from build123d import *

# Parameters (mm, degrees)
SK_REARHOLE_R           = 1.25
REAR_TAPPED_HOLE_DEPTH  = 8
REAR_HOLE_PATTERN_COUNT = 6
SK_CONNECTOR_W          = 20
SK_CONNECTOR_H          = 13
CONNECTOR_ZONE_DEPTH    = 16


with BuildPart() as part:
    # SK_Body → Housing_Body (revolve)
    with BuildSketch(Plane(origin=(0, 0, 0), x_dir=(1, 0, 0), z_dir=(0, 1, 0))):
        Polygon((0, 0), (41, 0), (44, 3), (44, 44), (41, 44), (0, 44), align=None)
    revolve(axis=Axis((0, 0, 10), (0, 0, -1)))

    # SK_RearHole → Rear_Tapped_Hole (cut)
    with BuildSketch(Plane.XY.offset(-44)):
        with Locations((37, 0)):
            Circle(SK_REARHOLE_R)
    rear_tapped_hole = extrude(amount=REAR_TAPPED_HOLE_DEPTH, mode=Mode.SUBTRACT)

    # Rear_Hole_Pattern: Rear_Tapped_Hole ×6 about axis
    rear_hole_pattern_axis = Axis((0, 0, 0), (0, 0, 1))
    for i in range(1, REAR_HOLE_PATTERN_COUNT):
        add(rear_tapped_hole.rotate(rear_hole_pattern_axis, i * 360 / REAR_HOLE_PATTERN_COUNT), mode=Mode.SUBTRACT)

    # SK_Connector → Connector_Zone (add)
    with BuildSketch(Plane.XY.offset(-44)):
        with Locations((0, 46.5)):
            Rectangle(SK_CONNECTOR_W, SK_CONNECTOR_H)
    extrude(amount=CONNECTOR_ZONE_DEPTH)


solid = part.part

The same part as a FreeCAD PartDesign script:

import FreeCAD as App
import Part
import Sketcher

V = App.Vector
Q = App.Units.Quantity


def add_polygon(sketch, points):
    """Adds a closed chain of lines whose ends are joined by coincident constraints."""
    first, n = sketch.GeometryCount, len(points)
    for a, b in zip(points, points[1:] + points[:1]):
        sketch.addGeometry(Part.LineSegment(App.Vector(*a, 0), App.Vector(*b, 0)), False)
    for i in range(n):
        sketch.addConstraint(Sketcher.Constraint("Coincident", first + i, 2, first + (i + 1) % n, 1))

doc = App.newDocument("Part")
params = doc.addObject("Spreadsheet::Sheet", "Params")
for row, (alias, value) in enumerate([
    ("sketch1_width", "41 mm"),
    ("sketch1_width2", "44 mm"),
    ("revolution_angle", "360 deg"),
    ("sketch2_diameter", "2.5 mm"),
    ("pocket1_length", "8 mm"),
    ("sketch3_width", "20 mm"),
    ("sketch3_height", "13 mm"),
    ("pad1_length", "16 mm"),
], start=1):
    params.set(f"A{row}", alias)
    params.set(f"B{row}", "=" + value)
    params.setAlias(f"B{row}", alias)

body = doc.addObject("PartDesign::Body", "Body")

sketch1 = body.newObject("Sketcher::SketchObject", "Sketch")
sketch1.AttachmentSupport = (doc.getObject("XZ_Plane"), [""])
sketch1.MapMode = "FlatFace"
add_polygon(sketch1, [(0, 0), (41, 0), (44, -3), (44, -44), (0, -44)])
sketch1.addConstraint([
    Sketcher.Constraint("Horizontal", 0),
    Sketcher.Constraint("Vertical", 2),
    Sketcher.Constraint("Horizontal", 3),
    Sketcher.Constraint("Vertical", 4),
    Sketcher.Constraint("Coincident", 4, 2, -1, 1),
    Sketcher.Constraint("Equal", 0, 2),
    Sketcher.Constraint("Equal", 3, 4),
    Sketcher.Constraint("DistanceX", 0, 1, 0, 2, Q("41 mm")),
    Sketcher.Constraint("DistanceX", 3, 2, 3, 1, Q("44 mm")),
])
sketch1.setExpression("Constraints[12]", "Params.sketch1_width")
sketch1.setExpression("Constraints[13]", "Params.sketch1_width2")
revolution = body.newObject("PartDesign::Revolution", "Revolution")
revolution.Profile = sketch1
revolution.ReferenceAxis = (sketch1, ["V_Axis"])
revolution.setExpression("Angle", "Params.revolution_angle")

sketch2 = body.newObject("Sketcher::SketchObject", "Sketch001")
sketch2.AttachmentSupport = (doc.getObject("XY_Plane"), [""])
sketch2.MapMode = "FlatFace"
sketch2.AttachmentOffset = App.Placement(V(0, 0, -44), App.Rotation())
sketch2.addGeometry(Part.Circle(V(37, 0, 0), V(0, 0, 1), 1.2), False)
sketch2.addConstraint([
    Sketcher.Constraint("PointOnObject", 0, 3, -1),
    Sketcher.Constraint("Diameter", 0, Q("2.5 mm")),
    Sketcher.Constraint("DistanceX", -1, 1, 0, 3, Q("37 mm")),
])
sketch2.setExpression("Constraints[1]", "Params.sketch2_diameter")
pocket1 = body.newObject("PartDesign::Pocket", "Pocket")
pocket1.Profile = sketch2
pocket1.setExpression("Length", "Params.pocket1_length")
pocket1.Reversed = True
doc.recompute()

polarpattern = body.newObject("PartDesign::PolarPattern", "PolarPattern")
polarpattern.Originals = [pocket1]
polarpattern.Axis = (doc.getObject("Z_Axis"), [""])
polarpattern.Angle = 360
polarpattern.Occurrences = 6
body.Tip = polarpattern

sketch3 = body.newObject("Sketcher::SketchObject", "Sketch002")
sketch3.AttachmentSupport = (doc.getObject("XY_Plane"), [""])
sketch3.MapMode = "FlatFace"
sketch3.AttachmentOffset = App.Placement(V(0, 0, -44), App.Rotation())
add_polygon(sketch3, [(-10, 53), (-10, 40), (10, 40), (10, 53)])
sketch3.addConstraint([
    Sketcher.Constraint("Vertical", 0),
    Sketcher.Constraint("Horizontal", 1),
    Sketcher.Constraint("Vertical", 2),
    Sketcher.Constraint("Horizontal", 3),
    Sketcher.Constraint("DistanceX", 1, 1, 1, 2, Q("20 mm")),
    Sketcher.Constraint("DistanceY", 0, 2, 0, 1, Q("13 mm")),
    Sketcher.Constraint("DistanceX", 0, 2, -1, 1, Q("10 mm")),
    Sketcher.Constraint("DistanceY", -1, 1, 0, 2, Q("40 mm")),
])
sketch3.setExpression("Constraints[8]", "Params.sketch3_width")
sketch3.setExpression("Constraints[9]", "Params.sketch3_height")
pad1 = body.newObject("PartDesign::Pad", "Pad")
pad1.Profile = sketch3
pad1.setExpression("Length", "Params.pad1_length")

doc.recompute()
